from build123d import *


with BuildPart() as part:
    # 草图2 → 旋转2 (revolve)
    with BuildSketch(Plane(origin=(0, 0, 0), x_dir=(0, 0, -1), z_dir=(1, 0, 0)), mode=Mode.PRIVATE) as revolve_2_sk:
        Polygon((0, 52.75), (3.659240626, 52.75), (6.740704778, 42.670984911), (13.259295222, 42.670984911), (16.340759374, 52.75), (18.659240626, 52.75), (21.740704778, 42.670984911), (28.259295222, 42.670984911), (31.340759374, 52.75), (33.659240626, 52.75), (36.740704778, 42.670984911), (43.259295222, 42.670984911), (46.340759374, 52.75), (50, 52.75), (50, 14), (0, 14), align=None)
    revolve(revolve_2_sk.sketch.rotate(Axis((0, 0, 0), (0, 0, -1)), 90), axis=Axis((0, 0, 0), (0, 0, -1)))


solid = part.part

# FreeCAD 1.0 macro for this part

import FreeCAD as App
import Part
import Sketcher

V = App.Vector
Q = App.Units.Quantity


def add_polygon(sketch, points):
    """Adds a closed chain of lines whose ends are joined by coincident constraints."""
    first, n = sketch.GeometryCount, len(points)
    for a, b in zip(points, points[1:] + points[:1]):
        sketch.addGeometry(Part.LineSegment(App.Vector(*a, 0), App.Vector(*b, 0)), False)
    for i in range(n):
        sketch.addConstraint(Sketcher.Constraint("Coincident", first + i, 2, first + (i + 1) % n, 1))

doc = App.newDocument("Part")
params = doc.addObject("Spreadsheet::Sheet", "Params")
for row, (alias, value) in enumerate([
    ("sketch1_height", "50 mm"),
    ("sketch1_width", "38.75 mm"),
    ("revolution_angle", "360 deg"),
], start=1):
    params.set(f"A{row}", alias)
    params.set(f"B{row}", "=" + value)
    params.setAlias(f"B{row}", alias)

body = doc.addObject("PartDesign::Body", "Body")

# Sketch on YZ plane
sketch1 = body.newObject("Sketcher::SketchObject", "Sketch")
sketch1.AttachmentSupport = (doc.getObject("YZ_Plane"), [""])
sketch1.MapMode = "FlatFace"
add_polygon(sketch1, [(52.8, -3.7), (52.8, 0), (14, 0), (14, -50), (52.8, -50), (52.8, -46.3), (42.7, -43.3), (42.7, -36.7), (52.8, -33.7), (52.8, -31.3), (42.7, -28.3), (42.7, -21.7), (52.8, -18.7), (52.8, -16.3), (42.7, -13.3), (42.7, -6.7)])  # lines 0-15
sketch1.addConstraint(Sketcher.Constraint("Vertical", 0))
sketch1.addConstraint(Sketcher.Constraint("Horizontal", 1))
sketch1.addConstraint(Sketcher.Constraint("Vertical", 2))
sketch1.addConstraint(Sketcher.Constraint("Horizontal", 3))
sketch1.addConstraint(Sketcher.Constraint("Vertical", 4))
sketch1.addConstraint(Sketcher.Constraint("Vertical", 6))
sketch1.addConstraint(Sketcher.Constraint("Vertical", 8))
sketch1.addConstraint(Sketcher.Constraint("Vertical", 10))
sketch1.addConstraint(Sketcher.Constraint("Vertical", 12))
sketch1.addConstraint(Sketcher.Constraint("Vertical", 14))
sketch1.addConstraint(Sketcher.Constraint("PointOnObject", 0, 2, -1))
sketch1.addConstraint(Sketcher.Constraint("Parallel", 5, 9))
sketch1.addConstraint(Sketcher.Constraint("Parallel", 7, 11))
sketch1.addConstraint(Sketcher.Constraint("Parallel", 9, 13))
sketch1.addConstraint(Sketcher.Constraint("Parallel", 11, 15))
sketch1.addConstraint(Sketcher.Constraint("Vertical", 0, 2, 3, 2))
sketch1.addConstraint(Sketcher.Constraint("Vertical", 4, 2, 7, 2))
sketch1.addConstraint(Sketcher.Constraint("Vertical", 6, 2, 9, 2))
sketch1.addConstraint(Sketcher.Constraint("Vertical", 8, 2, 11, 2))
sketch1.addConstraint(Sketcher.Constraint("Vertical", 10, 2, 13, 2))
sketch1.addConstraint(Sketcher.Constraint("Equal", 0, 4))
sketch1.addConstraint(Sketcher.Constraint("Equal", 6, 10))
sketch1.addConstraint(Sketcher.Constraint("Equal", 8, 12))
sketch1.addConstraint(Sketcher.Constraint("Equal", 10, 14))
sketch1.addConstraint(Sketcher.Constraint("Equal", 5, 7))
sketch1.addConstraint(Sketcher.Constraint("DistanceY", 2, 2, 2, 1, Q("50 mm")))
sketch1.addConstraint(Sketcher.Constraint("Angle", 5, Q("163 deg")))
sketch1.addConstraint(Sketcher.Constraint("DistanceX", -1, 1, 1, 2, Q("14 mm")))
sketch1.addConstraint(Sketcher.Constraint("DistanceY", 4, 2, 8, 2, Q("15 mm")))
sketch1.addConstraint(Sketcher.Constraint("DistanceX", 1, 2, 1, 1, Q("38.75 mm")))
sketch1.addConstraint(Sketcher.Constraint("DistanceY", 0, 1, 0, 2, Q("3.659241 mm")))
sketch1.addConstraint(Sketcher.Constraint("DistanceY", 6, 1, 6, 2, Q("6.51859 mm")))
sketch1.setExpression("Constraints[41]", "Params.sketch1_height")
sketch1.setExpression("Constraints[45]", "Params.sketch1_width")
revolution = body.newObject("PartDesign::Revolution", "Revolution")
revolution.Profile = sketch1
revolution.ReferenceAxis = (sketch1, ["V_Axis"])
revolution.setExpression("Angle", "Params.revolution_angle")

doc.recompute()
